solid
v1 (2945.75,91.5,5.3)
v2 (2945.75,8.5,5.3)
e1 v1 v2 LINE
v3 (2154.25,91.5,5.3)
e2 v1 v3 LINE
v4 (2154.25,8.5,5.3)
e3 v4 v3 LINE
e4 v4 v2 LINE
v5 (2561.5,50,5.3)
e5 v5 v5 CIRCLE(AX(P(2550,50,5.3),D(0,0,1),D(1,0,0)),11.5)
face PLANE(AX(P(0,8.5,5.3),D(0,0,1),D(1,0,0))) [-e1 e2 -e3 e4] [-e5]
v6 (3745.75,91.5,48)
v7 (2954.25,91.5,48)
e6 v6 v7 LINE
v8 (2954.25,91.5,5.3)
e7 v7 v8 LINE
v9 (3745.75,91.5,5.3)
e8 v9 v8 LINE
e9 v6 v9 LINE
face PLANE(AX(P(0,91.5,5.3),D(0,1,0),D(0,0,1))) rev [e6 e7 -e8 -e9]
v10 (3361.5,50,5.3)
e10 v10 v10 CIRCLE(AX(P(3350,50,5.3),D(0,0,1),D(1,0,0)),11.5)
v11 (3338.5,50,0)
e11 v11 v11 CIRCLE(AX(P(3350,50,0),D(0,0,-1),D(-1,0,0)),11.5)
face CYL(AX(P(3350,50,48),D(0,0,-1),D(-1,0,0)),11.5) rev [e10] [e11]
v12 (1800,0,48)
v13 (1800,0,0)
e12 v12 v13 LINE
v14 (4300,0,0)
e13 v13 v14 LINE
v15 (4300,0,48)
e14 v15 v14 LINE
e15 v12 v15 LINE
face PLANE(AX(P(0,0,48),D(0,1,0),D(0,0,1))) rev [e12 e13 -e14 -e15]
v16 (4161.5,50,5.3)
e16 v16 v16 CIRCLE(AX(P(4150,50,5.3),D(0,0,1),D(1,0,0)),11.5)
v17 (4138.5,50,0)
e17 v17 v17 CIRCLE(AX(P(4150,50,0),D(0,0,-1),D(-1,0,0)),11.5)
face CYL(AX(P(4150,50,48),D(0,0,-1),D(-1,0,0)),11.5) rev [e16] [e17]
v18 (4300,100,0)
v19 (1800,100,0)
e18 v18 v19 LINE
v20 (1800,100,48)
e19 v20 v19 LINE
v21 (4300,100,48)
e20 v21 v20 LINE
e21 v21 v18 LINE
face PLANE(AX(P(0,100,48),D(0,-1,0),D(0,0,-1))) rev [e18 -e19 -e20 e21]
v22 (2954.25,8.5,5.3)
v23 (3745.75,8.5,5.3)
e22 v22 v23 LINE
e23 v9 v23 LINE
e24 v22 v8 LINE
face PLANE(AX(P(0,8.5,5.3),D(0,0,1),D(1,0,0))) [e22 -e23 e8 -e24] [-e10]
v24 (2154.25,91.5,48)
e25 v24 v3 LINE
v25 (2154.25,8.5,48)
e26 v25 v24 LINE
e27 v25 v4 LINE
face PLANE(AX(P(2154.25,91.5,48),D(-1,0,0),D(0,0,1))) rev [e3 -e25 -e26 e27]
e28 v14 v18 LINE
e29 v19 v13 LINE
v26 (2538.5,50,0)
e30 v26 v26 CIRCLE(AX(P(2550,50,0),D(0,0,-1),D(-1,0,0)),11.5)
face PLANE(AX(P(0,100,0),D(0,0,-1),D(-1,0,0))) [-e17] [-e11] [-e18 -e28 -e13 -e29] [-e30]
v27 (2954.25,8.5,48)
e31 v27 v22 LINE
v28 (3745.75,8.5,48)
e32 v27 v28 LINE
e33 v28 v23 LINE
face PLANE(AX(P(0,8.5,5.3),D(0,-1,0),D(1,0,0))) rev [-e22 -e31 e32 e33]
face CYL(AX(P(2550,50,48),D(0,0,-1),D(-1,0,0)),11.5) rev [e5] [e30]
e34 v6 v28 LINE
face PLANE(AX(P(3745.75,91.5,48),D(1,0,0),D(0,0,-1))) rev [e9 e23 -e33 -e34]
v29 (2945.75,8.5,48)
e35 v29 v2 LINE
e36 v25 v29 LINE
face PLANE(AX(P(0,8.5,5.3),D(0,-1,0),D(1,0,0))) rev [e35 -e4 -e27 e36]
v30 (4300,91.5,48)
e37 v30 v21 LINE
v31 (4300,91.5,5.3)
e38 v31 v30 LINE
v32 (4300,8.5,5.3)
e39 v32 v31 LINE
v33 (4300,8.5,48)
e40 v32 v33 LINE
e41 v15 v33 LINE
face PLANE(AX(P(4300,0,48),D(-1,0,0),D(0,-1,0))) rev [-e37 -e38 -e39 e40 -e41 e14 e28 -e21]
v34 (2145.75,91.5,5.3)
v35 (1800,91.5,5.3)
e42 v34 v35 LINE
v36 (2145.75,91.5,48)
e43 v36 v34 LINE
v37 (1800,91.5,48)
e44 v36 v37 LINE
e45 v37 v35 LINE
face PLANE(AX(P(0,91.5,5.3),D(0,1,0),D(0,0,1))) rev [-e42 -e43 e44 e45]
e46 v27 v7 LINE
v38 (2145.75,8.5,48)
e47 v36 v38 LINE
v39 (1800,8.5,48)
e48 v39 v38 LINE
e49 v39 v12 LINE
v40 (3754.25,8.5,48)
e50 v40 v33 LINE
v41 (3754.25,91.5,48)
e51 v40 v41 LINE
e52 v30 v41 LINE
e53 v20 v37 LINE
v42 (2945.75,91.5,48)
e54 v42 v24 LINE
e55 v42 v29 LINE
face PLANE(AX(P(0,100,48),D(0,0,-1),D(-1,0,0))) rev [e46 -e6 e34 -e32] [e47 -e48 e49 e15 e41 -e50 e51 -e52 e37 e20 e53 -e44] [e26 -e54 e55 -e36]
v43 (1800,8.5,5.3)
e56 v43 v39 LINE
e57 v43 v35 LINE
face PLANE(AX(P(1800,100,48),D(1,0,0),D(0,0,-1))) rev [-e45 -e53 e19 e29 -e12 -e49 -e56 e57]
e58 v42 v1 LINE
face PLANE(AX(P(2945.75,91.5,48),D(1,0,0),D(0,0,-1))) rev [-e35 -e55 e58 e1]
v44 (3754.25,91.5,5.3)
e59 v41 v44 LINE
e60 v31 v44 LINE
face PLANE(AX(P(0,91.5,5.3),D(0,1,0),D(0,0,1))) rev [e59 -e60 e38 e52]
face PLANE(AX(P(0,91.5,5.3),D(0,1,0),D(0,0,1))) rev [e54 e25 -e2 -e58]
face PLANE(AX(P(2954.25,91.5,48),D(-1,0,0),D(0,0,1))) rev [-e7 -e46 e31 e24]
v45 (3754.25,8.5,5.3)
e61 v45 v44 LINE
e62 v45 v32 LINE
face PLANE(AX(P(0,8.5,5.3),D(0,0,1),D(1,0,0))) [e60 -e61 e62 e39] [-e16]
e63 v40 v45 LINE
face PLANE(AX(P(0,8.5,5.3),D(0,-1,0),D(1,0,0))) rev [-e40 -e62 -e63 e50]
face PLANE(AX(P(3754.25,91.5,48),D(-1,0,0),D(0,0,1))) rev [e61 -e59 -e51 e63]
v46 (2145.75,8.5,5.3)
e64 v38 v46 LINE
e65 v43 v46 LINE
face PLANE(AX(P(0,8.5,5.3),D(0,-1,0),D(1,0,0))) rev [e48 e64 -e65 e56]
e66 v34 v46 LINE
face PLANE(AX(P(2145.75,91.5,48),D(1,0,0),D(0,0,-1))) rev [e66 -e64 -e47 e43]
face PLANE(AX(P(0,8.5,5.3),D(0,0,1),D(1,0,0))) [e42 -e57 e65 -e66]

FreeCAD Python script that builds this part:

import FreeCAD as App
import Part
import Sketcher
from FreeCAD import Vector
Q = App.Units.Quantity

doc = App.newDocument("Part")
params = doc.addObject("Spreadsheet::Sheet", "Params")
for row, (alias, value) in enumerate([
    ("sketch1_width", "4300 mm"),
    ("sketch1_height", "100 mm"),
    ("pad1_length", "48 mm"),
    ("sketch2_width", "4300 mm"),
    ("sketch2_height", "83 mm"),
    ("pocket1_length", "42.7 mm"),
    ("sketch3_height", "83 mm"),
    ("sketch3_width", "8.5 mm"),
    ("pad2_length", "42.7 mm"),
    ("linearpattern_pitch", "800 mm"),
    ("sketch4_diameter", "23 mm"),
    ("linearpattern2_pitch", "800 mm"),
    ("sketch5_width", "1800 mm"),
    ("sketch5_height", "100 mm"),
    ("pocket3_length", "48 mm"),
], start=1):
    params.set(f"A{row}", alias)
    params.set(f"B{row}", "=" + value)
    params.setAlias(f"B{row}", alias)

body = doc.addObject("PartDesign::Body", "Body")

# Sketch on XY plane
sketch1 = body.newObject("Sketcher::SketchObject", "Sketch")
sketch1.AttachmentSupport = (doc.getObject("XY_Plane"), [""])
sketch1.MapMode = "FlatFace"
sketch1.addGeometry([
    Part.LineSegment(Vector(0, 100, 0), Vector(0, 0, 0)),
    Part.LineSegment(Vector(0, 0, 0), Vector(4300, 0, 0)),
    Part.LineSegment(Vector(4300, 0, 0), Vector(4300, 100, 0)),
    Part.LineSegment(Vector(4300, 100, 0), Vector(0, 100, 0)),
], False)
sketch1.addConstraint([
    Sketcher.Constraint("Coincident", 0, 2, 1, 1),
    Sketcher.Constraint("Coincident", 1, 2, 2, 1),
    Sketcher.Constraint("Coincident", 2, 2, 3, 1),
    Sketcher.Constraint("Coincident", 3, 2, 0, 1),
    Sketcher.Constraint("Vertical", 0),
    Sketcher.Constraint("Horizontal", 1),
    Sketcher.Constraint("Vertical", 2),
    Sketcher.Constraint("Horizontal", 3),
    Sketcher.Constraint("Coincident", 0, 2, -1, 1),
    Sketcher.Constraint("DistanceX", 1, 1, 1, 2, Q("4300 mm")),
    Sketcher.Constraint("DistanceY", 0, 2, 0, 1, Q("100 mm")),
])
sketch1.setExpression("Constraints[9]", "Params.sketch1_width")
sketch1.setExpression("Constraints[10]", "Params.sketch1_height")
pad1 = body.newObject("PartDesign::Pad", "Pad")
pad1.Profile = sketch1
pad1.setExpression("Length", "Params.pad1_length")

# Sketch on XY plane
sketch2 = body.newObject("Sketcher::SketchObject", "Sketch001")
sketch2.AttachmentSupport = (doc.getObject("XY_Plane"), [""])
sketch2.MapMode = "FlatFace"
sketch2.AttachmentOffset = App.Placement(Vector(0, 0, 48), App.Rotation())
sketch2.addGeometry([
    Part.LineSegment(Vector(0, 91.5, 0), Vector(0, 8.5, 0)),
    Part.LineSegment(Vector(0, 8.5, 0), Vector(4300, 8.5, 0)),
    Part.LineSegment(Vector(4300, 8.5, 0), Vector(4300, 91.5, 0)),
    Part.LineSegment(Vector(4300, 91.5, 0), Vector(0, 91.5, 0)),
], False)
sketch2.addConstraint([
    Sketcher.Constraint("Coincident", 0, 2, 1, 1),
    Sketcher.Constraint("Coincident", 1, 2, 2, 1),
    Sketcher.Constraint("Coincident", 2, 2, 3, 1),
    Sketcher.Constraint("Coincident", 3, 2, 0, 1),
    Sketcher.Constraint("Vertical", 0),
    Sketcher.Constraint("Horizontal", 1),
    Sketcher.Constraint("Vertical", 2),
    Sketcher.Constraint("Horizontal", 3),
    Sketcher.Constraint("PointOnObject", 0, 2, -2),
    Sketcher.Constraint("DistanceX", 1, 1, 1, 2, Q("4300 mm")),
    Sketcher.Constraint("DistanceY", 0, 2, 0, 1, Q("83 mm")),
    Sketcher.Constraint("DistanceY", -1, 1, 0, 2, Q("8.5 mm")),
])
sketch2.setExpression("Constraints[9]", "Params.sketch2_width")
sketch2.setExpression("Constraints[10]", "Params.sketch2_height")
pocket1 = body.newObject("PartDesign::Pocket", "Pocket")
pocket1.Profile = sketch2
pocket1.setExpression("Length", "Params.pocket1_length")

# Sketch on XY plane
sketch3 = body.newObject("Sketcher::SketchObject", "Sketch002")
sketch3.AttachmentSupport = (doc.getObject("XY_Plane"), [""])
sketch3.MapMode = "FlatFace"
sketch3.AttachmentOffset = App.Placement(Vector(0, 0, 5.3), App.Rotation())
sketch3.addGeometry([
    Part.LineSegment(Vector(545.75, 91.5, 0), Vector(545.75, 8.5, 0)),
    Part.LineSegment(Vector(545.75, 8.5, 0), Vector(554.25, 8.5, 0)),
    Part.LineSegment(Vector(554.25, 8.5, 0), Vector(554.25, 91.5, 0)),
    Part.LineSegment(Vector(554.25, 91.5, 0), Vector(545.75, 91.5, 0)),
], False)
sketch3.addConstraint([
    Sketcher.Constraint("Coincident", 0, 2, 1, 1),
    Sketcher.Constraint("Coincident", 1, 2, 2, 1),
    Sketcher.Constraint("Coincident", 2, 2, 3, 1),
    Sketcher.Constraint("Coincident", 3, 2, 0, 1),
    Sketcher.Constraint("Vertical", 0),
    Sketcher.Constraint("Horizontal", 1),
    Sketcher.Constraint("Vertical", 2),
    Sketcher.Constraint("Horizontal", 3),
    Sketcher.Constraint("DistanceY", 0, 2, 0, 1, Q("83 mm")),
    Sketcher.Constraint("DistanceX", 1, 1, 1, 2, Q("8.5 mm")),
    Sketcher.Constraint("DistanceY", -1, 1, 0, 2, Q("8.5 mm")),
    Sketcher.Constraint("DistanceX", -1, 1, 0, 2, Q("545.75 mm")),
])
sketch3.setExpression("Constraints[8]", "Params.sketch3_height")
sketch3.setExpression("Constraints[9]", "Params.sketch3_width")
pad2 = body.newObject("PartDesign::Pad", "Pad001")
pad2.Profile = sketch3
pad2.setExpression("Length", "Params.pad2_length")
doc.recompute()

linearpattern = body.newObject("PartDesign::LinearPattern", "LinearPattern")
linearpattern.Originals = [pad2]
linearpattern.Direction = (doc.getObject("X_Axis"), [""])
linearpattern.Mode = "offset"
linearpattern.setExpression("Offset", "Params.linearpattern_pitch")
linearpattern.Occurrences = 5
body.Tip = linearpattern

# Sketch on XY plane
sketch4 = body.newObject("Sketcher::SketchObject", "Sketch003")
sketch4.AttachmentSupport = (doc.getObject("XY_Plane"), [""])
sketch4.MapMode = "FlatFace"
sketch4.addGeometry(Part.Circle(Vector(4150, 50, 0), Vector(0, 0, 1), 11.5), False)
sketch4.addConstraint([
    Sketcher.Constraint("Diameter", 0, Q("23 mm")),
    Sketcher.Constraint("DistanceX", -1, 1, 0, 3, Q("4150 mm")),
    Sketcher.Constraint("DistanceY", -1, 1, 0, 3, Q("50 mm")),
])
sketch4.setExpression("Constraints[0]", "Params.sketch4_diameter")
pocket2 = body.newObject("PartDesign::Pocket", "Pocket001")
pocket2.Profile = sketch4
pocket2.Type = "ThroughAll"
pocket2.Reversed = True
doc.recompute()

linearpattern2 = body.newObject("PartDesign::LinearPattern", "LinearPattern001")
linearpattern2.Originals = [pocket2]
linearpattern2.Direction = (doc.getObject("X_Axis"), [""])
linearpattern2.Mode = "offset"
linearpattern2.setExpression("Offset", "Params.linearpattern2_pitch")
linearpattern2.Occurrences = 6
linearpattern2.Reversed = True
body.Tip = linearpattern2

# Sketch on XY plane
sketch5 = body.newObject("Sketcher::SketchObject", "Sketch004")
sketch5.AttachmentSupport = (doc.getObject("XY_Plane"), [""])
sketch5.MapMode = "FlatFace"
sketch5.addGeometry([
    Part.LineSegment(Vector(1800, 100, 0), Vector(1800, 0, 0)),
    Part.LineSegment(Vector(1800, 0, 0), Vector(0, 0, 0)),
    Part.LineSegment(Vector(0, 0, 0), Vector(0, 100, 0)),
    Part.LineSegment(Vector(0, 100, 0), Vector(1800, 100, 0)),
], False)
sketch5.addConstraint([
    Sketcher.Constraint("Coincident", 0, 2, 1, 1),
    Sketcher.Constraint("Coincident", 1, 2, 2, 1),
    Sketcher.Constraint("Coincident", 2, 2, 3, 1),
    Sketcher.Constraint("Coincident", 3, 2, 0, 1),
    Sketcher.Constraint("Vertical", 0),
    Sketcher.Constraint("Horizontal", 1),
    Sketcher.Constraint("Vertical", 2),
    Sketcher.Constraint("Horizontal", 3),
    Sketcher.Constraint("Coincident", 1, 2, -1, 1),
    Sketcher.Constraint("DistanceX", 1, 2, 1, 1, Q("1800 mm")),
    Sketcher.Constraint("DistanceY", 0, 2, 0, 1, Q("100 mm")),
])
sketch5.setExpression("Constraints[9]", "Params.sketch5_width")
sketch5.setExpression("Constraints[10]", "Params.sketch5_height")
pocket3 = body.newObject("PartDesign::Pocket", "Pocket002")
pocket3.Profile = sketch5
pocket3.setExpression("Length", "Params.pocket3_length")
pocket3.Reversed = True

doc.recompute()
